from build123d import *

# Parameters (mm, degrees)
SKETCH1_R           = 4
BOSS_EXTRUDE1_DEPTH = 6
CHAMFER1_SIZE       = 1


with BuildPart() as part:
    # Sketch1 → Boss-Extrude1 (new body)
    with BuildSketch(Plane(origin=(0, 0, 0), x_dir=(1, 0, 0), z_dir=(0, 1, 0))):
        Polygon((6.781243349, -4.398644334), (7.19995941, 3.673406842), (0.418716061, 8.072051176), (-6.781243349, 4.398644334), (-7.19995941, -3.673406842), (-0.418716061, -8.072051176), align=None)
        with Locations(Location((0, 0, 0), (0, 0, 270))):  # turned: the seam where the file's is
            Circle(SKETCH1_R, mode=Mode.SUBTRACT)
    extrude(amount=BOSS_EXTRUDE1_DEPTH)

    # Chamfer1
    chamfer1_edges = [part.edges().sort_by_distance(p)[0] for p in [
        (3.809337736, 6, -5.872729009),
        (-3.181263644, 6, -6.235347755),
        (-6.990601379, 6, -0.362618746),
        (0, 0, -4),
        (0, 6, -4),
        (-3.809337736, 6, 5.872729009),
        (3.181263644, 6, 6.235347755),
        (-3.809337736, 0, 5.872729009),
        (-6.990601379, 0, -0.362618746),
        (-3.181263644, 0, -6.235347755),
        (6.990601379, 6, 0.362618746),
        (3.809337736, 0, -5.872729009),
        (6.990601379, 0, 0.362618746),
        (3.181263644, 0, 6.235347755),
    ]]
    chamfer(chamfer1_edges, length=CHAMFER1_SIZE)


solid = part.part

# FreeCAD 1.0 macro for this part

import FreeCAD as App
import Part
import Sketcher
from FreeCAD import Vector
Q = App.Units.Quantity


def edges_at(feature, points):
    """Names of the edges that pass closest to the given points."""
    edges = feature.Shape.Edges
    near = lambda p: min(range(len(edges)), key=lambda i: edges[i].distToShape(Part.Vertex(*p))[0])
    return sorted({f"Edge{near(p) + 1}" for p in points})


def add_polygon(sketch, points):
    """Adds a closed chain of lines whose ends are joined by coincident constraints."""
    first, n = sketch.GeometryCount, len(points)
    for a, b in zip(points, points[1:] + points[:1]):
        sketch.addGeometry(Part.LineSegment(App.Vector(*a, 0), App.Vector(*b, 0)), False)
    for i in range(n):
        sketch.addConstraint(Sketcher.Constraint("Coincident", first + i, 2, first + (i + 1) % n, 1))

doc = App.newDocument("Part")
body = doc.addObject("PartDesign::Body", "Body")

sketch1 = body.newObject("Sketcher::SketchObject", "Sketch")
sketch1.AttachmentSupport = (doc.getObject("XZ_Plane"), [""])
sketch1.MapMode = "FlatFace"
add_polygon(sketch1, [(6.8, 4.4), (7.2, -3.7), (0.4, -8.1), (-6.8, -4.4), (-7.2, 3.7), (-0.4, 8.1)])
sketch1.addGeometry(Part.Circle(Vector(0, 0, 0), Vector(0, 0, 1), 4), False)
sketch1.addConstraint([
    Sketcher.Constraint("Coincident", 6, 3, -1, 1),
    Sketcher.Constraint("Symmetric", 0, 2, 3, 2, -1, 1),
    Sketcher.Constraint("Symmetric", 1, 2, 4, 2, -1, 1),
    Sketcher.Constraint("Symmetric", 2, 2, 5, 2, -1, 1),
    Sketcher.Constraint("Equal", 0, 1),
    Sketcher.Constraint("Equal", 1, 2),
    Sketcher.Constraint("Diameter", 6, Q("8 mm")),
    Sketcher.Constraint("DistanceX", -1, 1, 0, 2, Q("7.199959 mm")),
    Sketcher.Constraint("DistanceY", 1, 2, -1, 1, Q("8.072051 mm")),
    Sketcher.Constraint("DistanceX", 2, 2, 1, 2, Q("7.199959 mm")),
    Sketcher.Constraint("DistanceY", 2, 2, 3, 2, Q("8.072051 mm")),
])
pad1 = body.newObject("PartDesign::Pad", "Pad")
pad1.Profile = sketch1
pad1.Length = 6
pad1.Reversed = True
doc.recompute()

chamfer = body.newObject("PartDesign::Chamfer", "Chamfer")
chamfer.Base = (pad1, edges_at(pad1, [
    (3.809, 6, -5.873),
    (-3.181, 6, -6.235),
    (-6.991, 6, -0.363),
    (0, 0, -4),
    (0, 6, -4),
    (-3.809, 6, 5.873),
    (3.181, 6, 6.235),
    (-3.809, 0, 5.873),
    (-6.991, 0, -0.363),
    (-3.181, 0, -6.235),
    (6.991, 6, 0.363),
    (3.809, 0, -5.873),
    (6.991, 0, 0.363),
    (3.181, 0, 6.235),
]))
chamfer.Size = 1

doc.recompute()
